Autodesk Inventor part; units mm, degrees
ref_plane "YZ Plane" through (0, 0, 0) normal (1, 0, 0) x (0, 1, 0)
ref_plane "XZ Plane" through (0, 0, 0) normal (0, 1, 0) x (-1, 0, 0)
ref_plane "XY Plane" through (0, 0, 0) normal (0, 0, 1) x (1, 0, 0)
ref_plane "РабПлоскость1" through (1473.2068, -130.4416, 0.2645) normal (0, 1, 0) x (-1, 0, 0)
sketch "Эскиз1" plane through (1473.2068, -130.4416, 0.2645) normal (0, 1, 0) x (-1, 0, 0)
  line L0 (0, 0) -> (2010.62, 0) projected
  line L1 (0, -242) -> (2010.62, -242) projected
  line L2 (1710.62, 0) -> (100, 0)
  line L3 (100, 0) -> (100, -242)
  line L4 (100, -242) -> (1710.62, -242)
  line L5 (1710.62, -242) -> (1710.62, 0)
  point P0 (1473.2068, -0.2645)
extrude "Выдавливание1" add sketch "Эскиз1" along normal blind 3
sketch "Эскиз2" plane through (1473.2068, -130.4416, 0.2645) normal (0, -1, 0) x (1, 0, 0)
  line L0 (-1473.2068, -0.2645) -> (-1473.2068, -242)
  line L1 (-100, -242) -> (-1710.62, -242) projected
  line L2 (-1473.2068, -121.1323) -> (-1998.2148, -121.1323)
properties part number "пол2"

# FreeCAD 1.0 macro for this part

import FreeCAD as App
import Part
import Sketcher
from FreeCAD import Vector

doc = App.newDocument("Part")
body = doc.addObject("PartDesign::Body", "Body")

# Sketch on XZ plane
sketch1 = body.newObject("Sketcher::SketchObject", "Sketch")
sketch1.AttachmentSupport = (doc.getObject("XZ_Plane"), [""])
sketch1.MapMode = "FlatFace"
sketch1.AttachmentOffset = App.Placement(Vector(0, 0, 130.4416), App.Rotation())
sketch1.addGeometry([
    Part.LineSegment(Vector(-237, 0, 0), Vector(1373, 0, 0)),
    Part.LineSegment(Vector(1373, 0, 0), Vector(1373, -242, 0)),
    Part.LineSegment(Vector(1373, -242, 0), Vector(-237, -242, 0)),
    Part.LineSegment(Vector(-237, -242, 0), Vector(-237, 0, 0)),
], False)
sketch1.addConstraint([
    Sketcher.Constraint("Coincident", 0, 2, 1, 1),
    Sketcher.Constraint("Coincident", 1, 2, 2, 1),
    Sketcher.Constraint("Coincident", 2, 2, 3, 1),
    Sketcher.Constraint("Coincident", 3, 2, 0, 1),
    Sketcher.Constraint("Horizontal", 0),
    Sketcher.Constraint("Vertical", 1),
    Sketcher.Constraint("Horizontal", 2),
    Sketcher.Constraint("Vertical", 3),
    Sketcher.Constraint("DistanceY", 1, 2, 1, 1, 242.0),
    Sketcher.Constraint("DistanceX", 0, 1, 0, 2, 1610.62),
    Sketcher.Constraint("DistanceX", -1, 1, 0, 2, 1373.2068),
    Sketcher.Constraint("DistanceY", -1, 1, 0, 2, 0.2645),
])
pad1 = body.newObject("PartDesign::Pad", "Pad")
pad1.Profile = sketch1
pad1.Length = 3
pad1.Reversed = True

doc.recompute()
